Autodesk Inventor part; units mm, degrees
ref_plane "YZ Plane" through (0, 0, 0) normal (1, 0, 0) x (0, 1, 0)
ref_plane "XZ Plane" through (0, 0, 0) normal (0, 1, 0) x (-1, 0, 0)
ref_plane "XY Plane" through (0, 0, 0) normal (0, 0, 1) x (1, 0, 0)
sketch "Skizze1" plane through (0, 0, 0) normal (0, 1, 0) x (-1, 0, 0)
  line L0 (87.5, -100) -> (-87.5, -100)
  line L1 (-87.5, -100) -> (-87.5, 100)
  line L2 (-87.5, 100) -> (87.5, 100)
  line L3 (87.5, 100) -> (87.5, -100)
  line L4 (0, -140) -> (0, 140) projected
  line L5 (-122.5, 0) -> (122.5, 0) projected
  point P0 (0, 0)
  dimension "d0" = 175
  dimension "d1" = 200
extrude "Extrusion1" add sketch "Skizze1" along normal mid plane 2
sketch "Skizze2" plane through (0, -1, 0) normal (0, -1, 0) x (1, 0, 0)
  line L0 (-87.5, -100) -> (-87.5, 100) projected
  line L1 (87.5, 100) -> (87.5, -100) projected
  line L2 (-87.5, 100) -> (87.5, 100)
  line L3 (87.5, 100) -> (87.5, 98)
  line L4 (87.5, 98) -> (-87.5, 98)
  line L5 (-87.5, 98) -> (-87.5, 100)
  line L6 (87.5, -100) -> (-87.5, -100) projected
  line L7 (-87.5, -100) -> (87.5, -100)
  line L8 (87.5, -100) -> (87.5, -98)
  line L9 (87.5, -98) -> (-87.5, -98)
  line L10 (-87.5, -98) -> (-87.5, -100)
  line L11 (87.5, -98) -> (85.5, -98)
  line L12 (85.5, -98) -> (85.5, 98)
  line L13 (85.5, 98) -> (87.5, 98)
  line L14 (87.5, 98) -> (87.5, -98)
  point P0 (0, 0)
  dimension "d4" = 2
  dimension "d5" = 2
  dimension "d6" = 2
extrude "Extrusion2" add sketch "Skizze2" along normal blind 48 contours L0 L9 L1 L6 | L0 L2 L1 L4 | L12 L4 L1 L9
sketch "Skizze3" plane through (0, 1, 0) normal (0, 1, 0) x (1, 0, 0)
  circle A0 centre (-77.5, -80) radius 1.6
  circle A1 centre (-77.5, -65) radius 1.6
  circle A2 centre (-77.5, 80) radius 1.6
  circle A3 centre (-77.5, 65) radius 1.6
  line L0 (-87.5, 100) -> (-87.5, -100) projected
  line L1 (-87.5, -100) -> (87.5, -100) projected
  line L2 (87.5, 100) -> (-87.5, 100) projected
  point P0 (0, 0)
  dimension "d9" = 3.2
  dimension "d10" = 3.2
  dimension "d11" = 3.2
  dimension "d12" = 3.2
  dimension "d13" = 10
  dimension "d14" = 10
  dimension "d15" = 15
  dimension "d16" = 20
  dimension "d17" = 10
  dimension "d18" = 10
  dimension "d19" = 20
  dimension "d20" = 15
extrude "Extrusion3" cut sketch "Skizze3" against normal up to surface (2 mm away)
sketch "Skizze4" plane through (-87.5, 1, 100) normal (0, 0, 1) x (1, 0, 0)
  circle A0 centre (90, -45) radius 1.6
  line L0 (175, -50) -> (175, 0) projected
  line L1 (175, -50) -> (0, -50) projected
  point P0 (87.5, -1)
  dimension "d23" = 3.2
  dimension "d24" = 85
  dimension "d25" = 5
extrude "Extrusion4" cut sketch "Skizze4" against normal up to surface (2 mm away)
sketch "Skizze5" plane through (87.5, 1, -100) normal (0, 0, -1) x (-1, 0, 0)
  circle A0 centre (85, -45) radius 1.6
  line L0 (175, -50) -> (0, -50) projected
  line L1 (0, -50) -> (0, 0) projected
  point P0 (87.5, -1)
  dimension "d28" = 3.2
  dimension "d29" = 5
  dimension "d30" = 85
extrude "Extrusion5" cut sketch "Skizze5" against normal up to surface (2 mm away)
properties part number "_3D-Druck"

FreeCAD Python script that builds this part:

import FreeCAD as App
import Part
import Sketcher
from FreeCAD import Vector
Q = App.Units.Quantity

doc = App.newDocument("Part")
body = doc.addObject("PartDesign::Body", "Body")

sketch1 = body.newObject("Sketcher::SketchObject", "Sketch")
sketch1.AttachmentSupport = (doc.getObject("XZ_Plane"), [""])
sketch1.MapMode = "FlatFace"
sketch1.addGeometry([
    Part.LineSegment(Vector(-88, -100, 0), Vector(-88, 100, 0)),
    Part.LineSegment(Vector(-88, 100, 0), Vector(88, 100, 0)),
    Part.LineSegment(Vector(88, 100, 0), Vector(88, -100, 0)),
    Part.LineSegment(Vector(88, -100, 0), Vector(-88, -100, 0)),
], False)
sketch1.addConstraint([
    Sketcher.Constraint("Coincident", 0, 2, 1, 1),
    Sketcher.Constraint("Coincident", 1, 2, 2, 1),
    Sketcher.Constraint("Coincident", 2, 2, 3, 1),
    Sketcher.Constraint("Coincident", 3, 2, 0, 1),
    Sketcher.Constraint("Vertical", 0),
    Sketcher.Constraint("Horizontal", 1),
    Sketcher.Constraint("Vertical", 2),
    Sketcher.Constraint("Horizontal", 3),
    Sketcher.Constraint("Symmetric", 0, 2, 2, 2, -1, 1),
    Sketcher.Constraint("DistanceX", 1, 1, 1, 2, Q("175 mm")),
    Sketcher.Constraint("DistanceY", 0, 1, 0, 2, Q("200 mm")),
])
pad1 = body.newObject("PartDesign::Pad", "Pad")
pad1.Profile = sketch1
pad1.Length = 2
pad1.Midplane = True

sketch2 = body.newObject("Sketcher::SketchObject", "Sketch001")
sketch2.AttachmentSupport = (doc.getObject("XZ_Plane"), [""])
sketch2.MapMode = "FlatFace"
sketch2.AttachmentOffset = App.Placement(Vector(0, 0, 1), App.Rotation())
sketch2.addGeometry([
    Part.LineSegment(Vector(-87.5, -98, 0), Vector(-87.5, -100, 0)),
    Part.LineSegment(Vector(-87.5, -100, 0), Vector(87.5, -100, 0)),
    Part.LineSegment(Vector(87.5, -100, 0), Vector(87.5, 100, 0)),
    Part.LineSegment(Vector(87.5, 100, 0), Vector(-87.5, 100, 0)),
    Part.LineSegment(Vector(-87.5, 100, 0), Vector(-87.5, 98, 0)),
    Part.LineSegment(Vector(-87.5, 98, 0), Vector(85.5, 98, 0)),
    Part.LineSegment(Vector(85.5, 98, 0), Vector(85.5, -98, 0)),
    Part.LineSegment(Vector(85.5, -98, 0), Vector(-87.5, -98, 0)),
], False)
sketch2.addConstraint([
    Sketcher.Constraint("Coincident", 0, 2, 1, 1),
    Sketcher.Constraint("Coincident", 1, 2, 2, 1),
    Sketcher.Constraint("Coincident", 2, 2, 3, 1),
    Sketcher.Constraint("Coincident", 3, 2, 4, 1),
    Sketcher.Constraint("Coincident", 4, 2, 5, 1),
    Sketcher.Constraint("Coincident", 5, 2, 6, 1),
    Sketcher.Constraint("Coincident", 6, 2, 7, 1),
    Sketcher.Constraint("Coincident", 7, 2, 0, 1),
    Sketcher.Constraint("Vertical", 0),
    Sketcher.Constraint("Horizontal", 1),
    Sketcher.Constraint("Vertical", 2),
    Sketcher.Constraint("Horizontal", 3),
    Sketcher.Constraint("Vertical", 4),
    Sketcher.Constraint("Horizontal", 5),
    Sketcher.Constraint("Vertical", 6),
    Sketcher.Constraint("Horizontal", 7),
    Sketcher.Constraint("Symmetric", 0, 2, 2, 2, -1, 1),
    Sketcher.Constraint("Symmetric", 4, 2, 7, 2, -1),
    Sketcher.Constraint("DistanceY", 0, 2, 0, 1, Q("2 mm")),
    Sketcher.Constraint("DistanceX", 5, 2, 2, 2, Q("2 mm")),
    Sketcher.Constraint("DistanceX", 1, 1, 1, 2, Q("175 mm")),
    Sketcher.Constraint("DistanceY", 2, 1, 2, 2, Q("200 mm")),
])
pad2 = body.newObject("PartDesign::Pad", "Pad001")
pad2.Profile = sketch2
pad2.Length = 48

sketch3 = body.newObject("Sketcher::SketchObject", "Sketch002")
sketch3.AttachmentSupport = (doc.getObject("XZ_Plane"), [""])
sketch3.MapMode = "FlatFace"
sketch3.AttachmentOffset = App.Placement(Vector(0, 0, -1), App.Rotation())
sketch3.addGeometry([
    Part.Circle(Vector(-77.5, 80, 0), Vector(0, 0, 1), 1.6),
    Part.Circle(Vector(-77.5, 65, 0), Vector(0, 0, 1), 1.6),
    Part.Circle(Vector(-77.5, -80, 0), Vector(0, 0, 1), 1.6),
    Part.Circle(Vector(-77.5, -65, 0), Vector(0, 0, 1), 1.6),
], False)
sketch3.addConstraint([
    Sketcher.Constraint("Equal", 0, 1),
    Sketcher.Constraint("Equal", 1, 2),
    Sketcher.Constraint("Equal", 2, 3),
    Sketcher.Constraint("Symmetric", 0, 3, 2, 3, -1),
    Sketcher.Constraint("Symmetric", 1, 3, 3, 3, -1),
    Sketcher.Constraint("Vertical", 0, 3, 1, 3),
    Sketcher.Constraint("Diameter", 0, Q("3.2 mm")),
    Sketcher.Constraint("DistanceY", 1, 3, 0, 3, Q("15 mm")),
    Sketcher.Constraint("DistanceY", -1, 1, 0, 3, Q("80 mm")),
    Sketcher.Constraint("DistanceX", 0, 3, -1, 1, Q("77.5 mm")),
])
pocket1 = body.newObject("PartDesign::Pocket", "Pocket")
pocket1.Profile = sketch3
pocket1.Length = 2
pocket1.Reversed = True

sketch4 = body.newObject("Sketcher::SketchObject", "Sketch003")
sketch4.AttachmentSupport = (doc.getObject("XY_Plane"), [""])
sketch4.MapMode = "FlatFace"
sketch4.AttachmentOffset = App.Placement(Vector(0, 0, 100), App.Rotation())
sketch4.addGeometry(Part.Circle(Vector(2.5, -44, 0), Vector(0, 0, 1), 1.6), False)
sketch4.addConstraint([
    Sketcher.Constraint("Diameter", 0, Q("3.2 mm")),
    Sketcher.Constraint("DistanceY", 0, 3, -1, 1, Q("44 mm")),
    Sketcher.Constraint("DistanceX", -1, 1, 0, 3, Q("2.5 mm")),
])
pocket2 = body.newObject("PartDesign::Pocket", "Pocket001")
pocket2.Profile = sketch4
pocket2.Length = 2

sketch5 = body.newObject("Sketcher::SketchObject", "Sketch004")
sketch5.AttachmentSupport = (doc.getObject("XY_Plane"), [""])
sketch5.MapMode = "FlatFace"
sketch5.AttachmentOffset = App.Placement(Vector(0, 0, -100), App.Rotation())
sketch5.addGeometry(Part.Circle(Vector(2.5, -44, 0), Vector(0, 0, 1), 1.6), False)
sketch5.addConstraint([
    Sketcher.Constraint("Diameter", 0, Q("3.2 mm")),
    Sketcher.Constraint("DistanceY", 0, 3, -1, 1, Q("44 mm")),
    Sketcher.Constraint("DistanceX", -1, 1, 0, 3, Q("2.5 mm")),
])
pocket3 = body.newObject("PartDesign::Pocket", "Pocket002")
pocket3.Profile = sketch5
pocket3.Length = 2
pocket3.Reversed = True

doc.recompute()
